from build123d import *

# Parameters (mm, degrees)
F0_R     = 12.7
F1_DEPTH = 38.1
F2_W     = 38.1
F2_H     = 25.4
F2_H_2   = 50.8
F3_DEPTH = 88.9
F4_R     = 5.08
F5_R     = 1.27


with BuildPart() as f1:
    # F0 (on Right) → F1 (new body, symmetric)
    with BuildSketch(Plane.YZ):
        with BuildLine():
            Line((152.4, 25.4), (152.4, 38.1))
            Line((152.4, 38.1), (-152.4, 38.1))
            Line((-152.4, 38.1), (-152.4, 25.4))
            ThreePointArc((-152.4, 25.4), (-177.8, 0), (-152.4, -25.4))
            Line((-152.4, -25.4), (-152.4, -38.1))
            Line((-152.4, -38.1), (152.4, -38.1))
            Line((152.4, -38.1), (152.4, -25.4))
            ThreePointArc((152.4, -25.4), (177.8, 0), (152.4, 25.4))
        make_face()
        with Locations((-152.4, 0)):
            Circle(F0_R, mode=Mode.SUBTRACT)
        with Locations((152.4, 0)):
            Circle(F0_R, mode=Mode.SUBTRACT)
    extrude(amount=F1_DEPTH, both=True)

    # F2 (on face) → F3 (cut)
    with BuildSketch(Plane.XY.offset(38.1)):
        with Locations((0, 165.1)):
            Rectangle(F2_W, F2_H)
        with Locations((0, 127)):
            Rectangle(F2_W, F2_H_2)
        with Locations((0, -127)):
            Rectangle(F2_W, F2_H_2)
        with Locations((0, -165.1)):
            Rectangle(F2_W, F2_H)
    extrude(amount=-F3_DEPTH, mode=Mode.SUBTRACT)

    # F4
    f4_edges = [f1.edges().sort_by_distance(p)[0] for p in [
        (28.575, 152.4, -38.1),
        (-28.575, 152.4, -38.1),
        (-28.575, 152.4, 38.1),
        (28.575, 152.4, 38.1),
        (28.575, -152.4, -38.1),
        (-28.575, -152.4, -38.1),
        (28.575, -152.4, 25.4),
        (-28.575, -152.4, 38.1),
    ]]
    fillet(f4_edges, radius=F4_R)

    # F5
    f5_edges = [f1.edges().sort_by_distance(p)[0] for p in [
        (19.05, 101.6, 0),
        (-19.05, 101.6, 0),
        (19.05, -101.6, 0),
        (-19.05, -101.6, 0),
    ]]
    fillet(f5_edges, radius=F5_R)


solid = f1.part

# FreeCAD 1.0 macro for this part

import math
import FreeCAD as App
import Part
import Sketcher
from FreeCAD import Vector
Q = App.Units.Quantity


def edges_at(feature, points):
    """Names of the edges that pass closest to the given points."""
    edges = feature.Shape.Edges
    near = lambda p: min(range(len(edges)), key=lambda i: edges[i].distToShape(Part.Vertex(*p))[0])
    return sorted({f"Edge{near(p) + 1}" for p in points})

doc = App.newDocument("Part")
body = doc.addObject("PartDesign::Body", "Body")

# Sketch on YZ plane
sketch1 = doc.addObject("Sketcher::SketchObject", "Sketch")
body.addObject(sketch1)
sketch1.AttachmentSupport = (doc.YZ_Plane, [""])
sketch1.MapMode = "FlatFace"
sketch1.addGeometry([
    Part.LineSegment(Vector(152, 25, 0), Vector(152, 38, 0)),  # 0
    Part.LineSegment(Vector(152, 38, 0), Vector(-152, 38, 0)),  # 1
    Part.LineSegment(Vector(-152, 38, 0), Vector(-152, 25, 0)),  # 2
    Part.ArcOfCircle(Part.Circle(Vector(-152, 0, 0), Vector(0, 0, 1), 25), math.radians(90), math.radians(270)),  # 3
    Part.LineSegment(Vector(-152, -25, 0), Vector(-152, -38, 0)),  # 4
    Part.LineSegment(Vector(-152, -38, 0), Vector(152, -38, 0)),  # 5
    Part.LineSegment(Vector(152, -38, 0), Vector(152, -25, 0)),  # 6
    Part.ArcOfCircle(Part.Circle(Vector(152, 0, 0), Vector(0, 0, 1), 25), math.radians(-90), math.radians(90)),  # 7
    Part.Circle(Vector(-152, 0, 0), Vector(0, 0, 1), 13),  # 8
    Part.Circle(Vector(152, 0, 0), Vector(0, 0, 1), 13),  # 9
], False)
sketch1.addConstraint([
    Sketcher.Constraint("Coincident", 0, 2, 1, 1),
    Sketcher.Constraint("Coincident", 1, 2, 2, 1),
    Sketcher.Constraint("Coincident", 2, 2, 3, 1),
    Sketcher.Constraint("Coincident", 3, 2, 4, 1),
    Sketcher.Constraint("Coincident", 4, 2, 5, 1),
    Sketcher.Constraint("Coincident", 5, 2, 6, 1),
    Sketcher.Constraint("Coincident", 6, 2, 7, 1),
    Sketcher.Constraint("Coincident", 7, 2, 0, 1),
    Sketcher.Constraint("Vertical", 0),
    Sketcher.Constraint("Horizontal", 1),
    Sketcher.Constraint("Vertical", 2),
    Sketcher.Constraint("Vertical", 4),
    Sketcher.Constraint("Horizontal", 5),
    Sketcher.Constraint("Vertical", 6),
    Sketcher.Constraint("Coincident", 8, 3, 3, 3),
    Sketcher.Constraint("Coincident", 9, 3, 7, 3),
    Sketcher.Constraint("Equal", 3, 7),
    Sketcher.Constraint("Equal", 8, 9),
    Sketcher.Constraint("Symmetric", 3, 3, 7, 3, -1, 1),
    Sketcher.Constraint("Symmetric", 0, 2, 4, 2, -1, 1),
    Sketcher.Constraint("Symmetric", 3, 2, 6, 2, -2),
    Sketcher.Constraint("Vertical", 9, 3, 0, 2),
    Sketcher.Constraint("Vertical", 8, 3, 1, 2),
    Sketcher.Constraint("Diameter", 8, Q("1 in")),
    Sketcher.Constraint("Radius", 3, Q("1 in")),
    Sketcher.Constraint("DistanceX", 1, 2, 1, 1, Q("12 in")),
    Sketcher.Constraint("DistanceY", 0, 1, 0, 2, Q("0.5 in")),
])
pad1 = doc.addObject("PartDesign::Pad", "Pad")
body.addObject(pad1)
pad1.Profile = sketch1
pad1.Length = Q("3 in")
pad1.Midplane = True

# Sketch on XY plane
sketch2 = doc.addObject("Sketcher::SketchObject", "Sketch001")
body.addObject(sketch2)
sketch2.AttachmentSupport = (doc.XY_Plane, [""])
sketch2.MapMode = "FlatFace"
sketch2.AttachmentOffset = App.Placement(Vector(0, 0, 1.5 * 25.4), App.Rotation())
sketch2.addGeometry([
    Part.LineSegment(Vector(-19, 178, 0), Vector(-19, 102, 0)),  # 0
    Part.LineSegment(Vector(-19, 102, 0), Vector(19, 102, 0)),  # 1
    Part.LineSegment(Vector(19, 102, 0), Vector(19, 178, 0)),  # 2
    Part.LineSegment(Vector(19, 178, 0), Vector(-19, 178, 0)),  # 3
    Part.LineSegment(Vector(-19, -102, 0), Vector(-19, -178, 0)),  # 4
    Part.LineSegment(Vector(-19, -178, 0), Vector(19, -178, 0)),  # 5
    Part.LineSegment(Vector(19, -178, 0), Vector(19, -102, 0)),  # 6
    Part.LineSegment(Vector(19, -102, 0), Vector(-19, -102, 0)),  # 7
], False)
sketch2.addConstraint([
    Sketcher.Constraint("Coincident", 0, 2, 1, 1),
    Sketcher.Constraint("Coincident", 1, 2, 2, 1),
    Sketcher.Constraint("Coincident", 2, 2, 3, 1),
    Sketcher.Constraint("Coincident", 3, 2, 0, 1),
    Sketcher.Constraint("Coincident", 4, 2, 5, 1),
    Sketcher.Constraint("Coincident", 5, 2, 6, 1),
    Sketcher.Constraint("Coincident", 6, 2, 7, 1),
    Sketcher.Constraint("Coincident", 7, 2, 4, 1),
    Sketcher.Constraint("Vertical", 0),
    Sketcher.Constraint("Horizontal", 1),
    Sketcher.Constraint("Vertical", 2),
    Sketcher.Constraint("Horizontal", 3),
    Sketcher.Constraint("Vertical", 4),
    Sketcher.Constraint("Horizontal", 5),
    Sketcher.Constraint("Vertical", 6),
    Sketcher.Constraint("Horizontal", 7),
    Sketcher.Constraint("Symmetric", 2, 2, 4, 2, -1, 1),
    Sketcher.Constraint("Symmetric", 0, 2, 6, 2, -1, 1),
    Sketcher.Constraint("Vertical", 3, 2, 4, 2),
    Sketcher.Constraint("DistanceY", 0, 2, 0, 1, Q("3 in")),
    Sketcher.Constraint("DistanceX", 1, 1, 1, 2, Q("1.5 in")),
    Sketcher.Constraint("DistanceY", -1, 1, 0, 2, Q("4 in")),
])
pocket1 = doc.addObject("PartDesign::Pocket", "Pocket")
body.addObject(pocket1)
pocket1.Profile = sketch2
pocket1.Length = Q("3.5 in")
doc.recompute()

fillet = doc.addObject("PartDesign::Fillet", "Fillet")
body.addObject(fillet)
fillet.Base = (pocket1, edges_at(pocket1, [
    (28.575, 152.4, -38.1),
    (-28.575, 152.4, -38.1),
    (-28.575, 152.4, 38.1),
    (28.575, 152.4, 38.1),
    (28.575, -152.4, -38.1),
    (-28.575, -152.4, -38.1),
    (28.575, -152.4, 25.4),
    (-28.575, -152.4, 38.1),
]))
fillet.Radius = Q("0.2 in")
doc.recompute()

fillet2 = doc.addObject("PartDesign::Fillet", "Fillet001")
body.addObject(fillet2)
fillet2.Base = (fillet, edges_at(fillet, [
    (19.05, 101.6, 0),
    (-19.05, 101.6, 0),
    (19.05, -101.6, 0),
    (-19.05, -101.6, 0),
]))
fillet2.Radius = Q("0.05 in")

doc.recompute()
